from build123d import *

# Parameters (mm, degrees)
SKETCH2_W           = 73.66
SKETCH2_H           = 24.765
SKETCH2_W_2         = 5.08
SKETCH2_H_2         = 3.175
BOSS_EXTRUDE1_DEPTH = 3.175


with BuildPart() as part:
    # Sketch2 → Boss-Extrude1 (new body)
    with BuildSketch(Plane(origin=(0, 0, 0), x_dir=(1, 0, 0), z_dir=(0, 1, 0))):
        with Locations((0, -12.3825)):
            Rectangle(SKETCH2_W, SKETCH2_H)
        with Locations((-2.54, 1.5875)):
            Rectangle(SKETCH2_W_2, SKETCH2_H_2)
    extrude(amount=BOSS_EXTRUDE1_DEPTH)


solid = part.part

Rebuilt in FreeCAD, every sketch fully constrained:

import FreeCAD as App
import Part
import Sketcher
Q = App.Units.Quantity


def add_polygon(sketch, points):
    """Adds a closed chain of lines whose ends are joined by coincident constraints."""
    first, n = sketch.GeometryCount, len(points)
    for a, b in zip(points, points[1:] + points[:1]):
        sketch.addGeometry(Part.LineSegment(App.Vector(*a, 0), App.Vector(*b, 0)), False)
    for i in range(n):
        sketch.addConstraint(Sketcher.Constraint("Coincident", first + i, 2, first + (i + 1) % n, 1))

doc = App.newDocument("Part")
body = doc.addObject("PartDesign::Body", "Body")

# Sketch on XZ plane
sketch1 = doc.addObject("Sketcher::SketchObject", "Sketch")
body.addObject(sketch1)
sketch1.AttachmentSupport = (doc.XZ_Plane, [""])
sketch1.MapMode = "FlatFace"
add_polygon(sketch1, [(-36.8, 0), (-36.8, 24.8), (36.8, 24.8), (36.8, 0), (0, 0), (0, -3.2), (-5.1, -3.2), (-5.1, 0)])  # lines 0-7
sketch1.addConstraint(Sketcher.Constraint("Vertical", 0))
sketch1.addConstraint(Sketcher.Constraint("Horizontal", 1))
sketch1.addConstraint(Sketcher.Constraint("Vertical", 2))
sketch1.addConstraint(Sketcher.Constraint("Horizontal", 3))
sketch1.addConstraint(Sketcher.Constraint("Vertical", 4))
sketch1.addConstraint(Sketcher.Constraint("Horizontal", 5))
sketch1.addConstraint(Sketcher.Constraint("Vertical", 6))
sketch1.addConstraint(Sketcher.Constraint("Horizontal", 7))
sketch1.addConstraint(Sketcher.Constraint("Coincident", 3, 2, -1, 1))
sketch1.addConstraint(Sketcher.Constraint("Symmetric", 2, 2, 7, 2, -1, 1))
sketch1.addConstraint(Sketcher.Constraint("DistanceX", 1, 1, 1, 2, Q("2.9 in")))
sketch1.addConstraint(Sketcher.Constraint("DistanceX", 5, 2, 5, 1, Q("0.2 in")))
sketch1.addConstraint(Sketcher.Constraint("DistanceY", 4, 2, 0, 2, Q("1.1 in")))
sketch1.addConstraint(Sketcher.Constraint("DistanceY", 0, 1, 0, 2, Q("0.975 in")))
pad1 = doc.addObject("PartDesign::Pad", "Pad")
body.addObject(pad1)
pad1.Profile = sketch1
pad1.Length = Q("0.125 in")
pad1.Reversed = True

doc.recompute()
